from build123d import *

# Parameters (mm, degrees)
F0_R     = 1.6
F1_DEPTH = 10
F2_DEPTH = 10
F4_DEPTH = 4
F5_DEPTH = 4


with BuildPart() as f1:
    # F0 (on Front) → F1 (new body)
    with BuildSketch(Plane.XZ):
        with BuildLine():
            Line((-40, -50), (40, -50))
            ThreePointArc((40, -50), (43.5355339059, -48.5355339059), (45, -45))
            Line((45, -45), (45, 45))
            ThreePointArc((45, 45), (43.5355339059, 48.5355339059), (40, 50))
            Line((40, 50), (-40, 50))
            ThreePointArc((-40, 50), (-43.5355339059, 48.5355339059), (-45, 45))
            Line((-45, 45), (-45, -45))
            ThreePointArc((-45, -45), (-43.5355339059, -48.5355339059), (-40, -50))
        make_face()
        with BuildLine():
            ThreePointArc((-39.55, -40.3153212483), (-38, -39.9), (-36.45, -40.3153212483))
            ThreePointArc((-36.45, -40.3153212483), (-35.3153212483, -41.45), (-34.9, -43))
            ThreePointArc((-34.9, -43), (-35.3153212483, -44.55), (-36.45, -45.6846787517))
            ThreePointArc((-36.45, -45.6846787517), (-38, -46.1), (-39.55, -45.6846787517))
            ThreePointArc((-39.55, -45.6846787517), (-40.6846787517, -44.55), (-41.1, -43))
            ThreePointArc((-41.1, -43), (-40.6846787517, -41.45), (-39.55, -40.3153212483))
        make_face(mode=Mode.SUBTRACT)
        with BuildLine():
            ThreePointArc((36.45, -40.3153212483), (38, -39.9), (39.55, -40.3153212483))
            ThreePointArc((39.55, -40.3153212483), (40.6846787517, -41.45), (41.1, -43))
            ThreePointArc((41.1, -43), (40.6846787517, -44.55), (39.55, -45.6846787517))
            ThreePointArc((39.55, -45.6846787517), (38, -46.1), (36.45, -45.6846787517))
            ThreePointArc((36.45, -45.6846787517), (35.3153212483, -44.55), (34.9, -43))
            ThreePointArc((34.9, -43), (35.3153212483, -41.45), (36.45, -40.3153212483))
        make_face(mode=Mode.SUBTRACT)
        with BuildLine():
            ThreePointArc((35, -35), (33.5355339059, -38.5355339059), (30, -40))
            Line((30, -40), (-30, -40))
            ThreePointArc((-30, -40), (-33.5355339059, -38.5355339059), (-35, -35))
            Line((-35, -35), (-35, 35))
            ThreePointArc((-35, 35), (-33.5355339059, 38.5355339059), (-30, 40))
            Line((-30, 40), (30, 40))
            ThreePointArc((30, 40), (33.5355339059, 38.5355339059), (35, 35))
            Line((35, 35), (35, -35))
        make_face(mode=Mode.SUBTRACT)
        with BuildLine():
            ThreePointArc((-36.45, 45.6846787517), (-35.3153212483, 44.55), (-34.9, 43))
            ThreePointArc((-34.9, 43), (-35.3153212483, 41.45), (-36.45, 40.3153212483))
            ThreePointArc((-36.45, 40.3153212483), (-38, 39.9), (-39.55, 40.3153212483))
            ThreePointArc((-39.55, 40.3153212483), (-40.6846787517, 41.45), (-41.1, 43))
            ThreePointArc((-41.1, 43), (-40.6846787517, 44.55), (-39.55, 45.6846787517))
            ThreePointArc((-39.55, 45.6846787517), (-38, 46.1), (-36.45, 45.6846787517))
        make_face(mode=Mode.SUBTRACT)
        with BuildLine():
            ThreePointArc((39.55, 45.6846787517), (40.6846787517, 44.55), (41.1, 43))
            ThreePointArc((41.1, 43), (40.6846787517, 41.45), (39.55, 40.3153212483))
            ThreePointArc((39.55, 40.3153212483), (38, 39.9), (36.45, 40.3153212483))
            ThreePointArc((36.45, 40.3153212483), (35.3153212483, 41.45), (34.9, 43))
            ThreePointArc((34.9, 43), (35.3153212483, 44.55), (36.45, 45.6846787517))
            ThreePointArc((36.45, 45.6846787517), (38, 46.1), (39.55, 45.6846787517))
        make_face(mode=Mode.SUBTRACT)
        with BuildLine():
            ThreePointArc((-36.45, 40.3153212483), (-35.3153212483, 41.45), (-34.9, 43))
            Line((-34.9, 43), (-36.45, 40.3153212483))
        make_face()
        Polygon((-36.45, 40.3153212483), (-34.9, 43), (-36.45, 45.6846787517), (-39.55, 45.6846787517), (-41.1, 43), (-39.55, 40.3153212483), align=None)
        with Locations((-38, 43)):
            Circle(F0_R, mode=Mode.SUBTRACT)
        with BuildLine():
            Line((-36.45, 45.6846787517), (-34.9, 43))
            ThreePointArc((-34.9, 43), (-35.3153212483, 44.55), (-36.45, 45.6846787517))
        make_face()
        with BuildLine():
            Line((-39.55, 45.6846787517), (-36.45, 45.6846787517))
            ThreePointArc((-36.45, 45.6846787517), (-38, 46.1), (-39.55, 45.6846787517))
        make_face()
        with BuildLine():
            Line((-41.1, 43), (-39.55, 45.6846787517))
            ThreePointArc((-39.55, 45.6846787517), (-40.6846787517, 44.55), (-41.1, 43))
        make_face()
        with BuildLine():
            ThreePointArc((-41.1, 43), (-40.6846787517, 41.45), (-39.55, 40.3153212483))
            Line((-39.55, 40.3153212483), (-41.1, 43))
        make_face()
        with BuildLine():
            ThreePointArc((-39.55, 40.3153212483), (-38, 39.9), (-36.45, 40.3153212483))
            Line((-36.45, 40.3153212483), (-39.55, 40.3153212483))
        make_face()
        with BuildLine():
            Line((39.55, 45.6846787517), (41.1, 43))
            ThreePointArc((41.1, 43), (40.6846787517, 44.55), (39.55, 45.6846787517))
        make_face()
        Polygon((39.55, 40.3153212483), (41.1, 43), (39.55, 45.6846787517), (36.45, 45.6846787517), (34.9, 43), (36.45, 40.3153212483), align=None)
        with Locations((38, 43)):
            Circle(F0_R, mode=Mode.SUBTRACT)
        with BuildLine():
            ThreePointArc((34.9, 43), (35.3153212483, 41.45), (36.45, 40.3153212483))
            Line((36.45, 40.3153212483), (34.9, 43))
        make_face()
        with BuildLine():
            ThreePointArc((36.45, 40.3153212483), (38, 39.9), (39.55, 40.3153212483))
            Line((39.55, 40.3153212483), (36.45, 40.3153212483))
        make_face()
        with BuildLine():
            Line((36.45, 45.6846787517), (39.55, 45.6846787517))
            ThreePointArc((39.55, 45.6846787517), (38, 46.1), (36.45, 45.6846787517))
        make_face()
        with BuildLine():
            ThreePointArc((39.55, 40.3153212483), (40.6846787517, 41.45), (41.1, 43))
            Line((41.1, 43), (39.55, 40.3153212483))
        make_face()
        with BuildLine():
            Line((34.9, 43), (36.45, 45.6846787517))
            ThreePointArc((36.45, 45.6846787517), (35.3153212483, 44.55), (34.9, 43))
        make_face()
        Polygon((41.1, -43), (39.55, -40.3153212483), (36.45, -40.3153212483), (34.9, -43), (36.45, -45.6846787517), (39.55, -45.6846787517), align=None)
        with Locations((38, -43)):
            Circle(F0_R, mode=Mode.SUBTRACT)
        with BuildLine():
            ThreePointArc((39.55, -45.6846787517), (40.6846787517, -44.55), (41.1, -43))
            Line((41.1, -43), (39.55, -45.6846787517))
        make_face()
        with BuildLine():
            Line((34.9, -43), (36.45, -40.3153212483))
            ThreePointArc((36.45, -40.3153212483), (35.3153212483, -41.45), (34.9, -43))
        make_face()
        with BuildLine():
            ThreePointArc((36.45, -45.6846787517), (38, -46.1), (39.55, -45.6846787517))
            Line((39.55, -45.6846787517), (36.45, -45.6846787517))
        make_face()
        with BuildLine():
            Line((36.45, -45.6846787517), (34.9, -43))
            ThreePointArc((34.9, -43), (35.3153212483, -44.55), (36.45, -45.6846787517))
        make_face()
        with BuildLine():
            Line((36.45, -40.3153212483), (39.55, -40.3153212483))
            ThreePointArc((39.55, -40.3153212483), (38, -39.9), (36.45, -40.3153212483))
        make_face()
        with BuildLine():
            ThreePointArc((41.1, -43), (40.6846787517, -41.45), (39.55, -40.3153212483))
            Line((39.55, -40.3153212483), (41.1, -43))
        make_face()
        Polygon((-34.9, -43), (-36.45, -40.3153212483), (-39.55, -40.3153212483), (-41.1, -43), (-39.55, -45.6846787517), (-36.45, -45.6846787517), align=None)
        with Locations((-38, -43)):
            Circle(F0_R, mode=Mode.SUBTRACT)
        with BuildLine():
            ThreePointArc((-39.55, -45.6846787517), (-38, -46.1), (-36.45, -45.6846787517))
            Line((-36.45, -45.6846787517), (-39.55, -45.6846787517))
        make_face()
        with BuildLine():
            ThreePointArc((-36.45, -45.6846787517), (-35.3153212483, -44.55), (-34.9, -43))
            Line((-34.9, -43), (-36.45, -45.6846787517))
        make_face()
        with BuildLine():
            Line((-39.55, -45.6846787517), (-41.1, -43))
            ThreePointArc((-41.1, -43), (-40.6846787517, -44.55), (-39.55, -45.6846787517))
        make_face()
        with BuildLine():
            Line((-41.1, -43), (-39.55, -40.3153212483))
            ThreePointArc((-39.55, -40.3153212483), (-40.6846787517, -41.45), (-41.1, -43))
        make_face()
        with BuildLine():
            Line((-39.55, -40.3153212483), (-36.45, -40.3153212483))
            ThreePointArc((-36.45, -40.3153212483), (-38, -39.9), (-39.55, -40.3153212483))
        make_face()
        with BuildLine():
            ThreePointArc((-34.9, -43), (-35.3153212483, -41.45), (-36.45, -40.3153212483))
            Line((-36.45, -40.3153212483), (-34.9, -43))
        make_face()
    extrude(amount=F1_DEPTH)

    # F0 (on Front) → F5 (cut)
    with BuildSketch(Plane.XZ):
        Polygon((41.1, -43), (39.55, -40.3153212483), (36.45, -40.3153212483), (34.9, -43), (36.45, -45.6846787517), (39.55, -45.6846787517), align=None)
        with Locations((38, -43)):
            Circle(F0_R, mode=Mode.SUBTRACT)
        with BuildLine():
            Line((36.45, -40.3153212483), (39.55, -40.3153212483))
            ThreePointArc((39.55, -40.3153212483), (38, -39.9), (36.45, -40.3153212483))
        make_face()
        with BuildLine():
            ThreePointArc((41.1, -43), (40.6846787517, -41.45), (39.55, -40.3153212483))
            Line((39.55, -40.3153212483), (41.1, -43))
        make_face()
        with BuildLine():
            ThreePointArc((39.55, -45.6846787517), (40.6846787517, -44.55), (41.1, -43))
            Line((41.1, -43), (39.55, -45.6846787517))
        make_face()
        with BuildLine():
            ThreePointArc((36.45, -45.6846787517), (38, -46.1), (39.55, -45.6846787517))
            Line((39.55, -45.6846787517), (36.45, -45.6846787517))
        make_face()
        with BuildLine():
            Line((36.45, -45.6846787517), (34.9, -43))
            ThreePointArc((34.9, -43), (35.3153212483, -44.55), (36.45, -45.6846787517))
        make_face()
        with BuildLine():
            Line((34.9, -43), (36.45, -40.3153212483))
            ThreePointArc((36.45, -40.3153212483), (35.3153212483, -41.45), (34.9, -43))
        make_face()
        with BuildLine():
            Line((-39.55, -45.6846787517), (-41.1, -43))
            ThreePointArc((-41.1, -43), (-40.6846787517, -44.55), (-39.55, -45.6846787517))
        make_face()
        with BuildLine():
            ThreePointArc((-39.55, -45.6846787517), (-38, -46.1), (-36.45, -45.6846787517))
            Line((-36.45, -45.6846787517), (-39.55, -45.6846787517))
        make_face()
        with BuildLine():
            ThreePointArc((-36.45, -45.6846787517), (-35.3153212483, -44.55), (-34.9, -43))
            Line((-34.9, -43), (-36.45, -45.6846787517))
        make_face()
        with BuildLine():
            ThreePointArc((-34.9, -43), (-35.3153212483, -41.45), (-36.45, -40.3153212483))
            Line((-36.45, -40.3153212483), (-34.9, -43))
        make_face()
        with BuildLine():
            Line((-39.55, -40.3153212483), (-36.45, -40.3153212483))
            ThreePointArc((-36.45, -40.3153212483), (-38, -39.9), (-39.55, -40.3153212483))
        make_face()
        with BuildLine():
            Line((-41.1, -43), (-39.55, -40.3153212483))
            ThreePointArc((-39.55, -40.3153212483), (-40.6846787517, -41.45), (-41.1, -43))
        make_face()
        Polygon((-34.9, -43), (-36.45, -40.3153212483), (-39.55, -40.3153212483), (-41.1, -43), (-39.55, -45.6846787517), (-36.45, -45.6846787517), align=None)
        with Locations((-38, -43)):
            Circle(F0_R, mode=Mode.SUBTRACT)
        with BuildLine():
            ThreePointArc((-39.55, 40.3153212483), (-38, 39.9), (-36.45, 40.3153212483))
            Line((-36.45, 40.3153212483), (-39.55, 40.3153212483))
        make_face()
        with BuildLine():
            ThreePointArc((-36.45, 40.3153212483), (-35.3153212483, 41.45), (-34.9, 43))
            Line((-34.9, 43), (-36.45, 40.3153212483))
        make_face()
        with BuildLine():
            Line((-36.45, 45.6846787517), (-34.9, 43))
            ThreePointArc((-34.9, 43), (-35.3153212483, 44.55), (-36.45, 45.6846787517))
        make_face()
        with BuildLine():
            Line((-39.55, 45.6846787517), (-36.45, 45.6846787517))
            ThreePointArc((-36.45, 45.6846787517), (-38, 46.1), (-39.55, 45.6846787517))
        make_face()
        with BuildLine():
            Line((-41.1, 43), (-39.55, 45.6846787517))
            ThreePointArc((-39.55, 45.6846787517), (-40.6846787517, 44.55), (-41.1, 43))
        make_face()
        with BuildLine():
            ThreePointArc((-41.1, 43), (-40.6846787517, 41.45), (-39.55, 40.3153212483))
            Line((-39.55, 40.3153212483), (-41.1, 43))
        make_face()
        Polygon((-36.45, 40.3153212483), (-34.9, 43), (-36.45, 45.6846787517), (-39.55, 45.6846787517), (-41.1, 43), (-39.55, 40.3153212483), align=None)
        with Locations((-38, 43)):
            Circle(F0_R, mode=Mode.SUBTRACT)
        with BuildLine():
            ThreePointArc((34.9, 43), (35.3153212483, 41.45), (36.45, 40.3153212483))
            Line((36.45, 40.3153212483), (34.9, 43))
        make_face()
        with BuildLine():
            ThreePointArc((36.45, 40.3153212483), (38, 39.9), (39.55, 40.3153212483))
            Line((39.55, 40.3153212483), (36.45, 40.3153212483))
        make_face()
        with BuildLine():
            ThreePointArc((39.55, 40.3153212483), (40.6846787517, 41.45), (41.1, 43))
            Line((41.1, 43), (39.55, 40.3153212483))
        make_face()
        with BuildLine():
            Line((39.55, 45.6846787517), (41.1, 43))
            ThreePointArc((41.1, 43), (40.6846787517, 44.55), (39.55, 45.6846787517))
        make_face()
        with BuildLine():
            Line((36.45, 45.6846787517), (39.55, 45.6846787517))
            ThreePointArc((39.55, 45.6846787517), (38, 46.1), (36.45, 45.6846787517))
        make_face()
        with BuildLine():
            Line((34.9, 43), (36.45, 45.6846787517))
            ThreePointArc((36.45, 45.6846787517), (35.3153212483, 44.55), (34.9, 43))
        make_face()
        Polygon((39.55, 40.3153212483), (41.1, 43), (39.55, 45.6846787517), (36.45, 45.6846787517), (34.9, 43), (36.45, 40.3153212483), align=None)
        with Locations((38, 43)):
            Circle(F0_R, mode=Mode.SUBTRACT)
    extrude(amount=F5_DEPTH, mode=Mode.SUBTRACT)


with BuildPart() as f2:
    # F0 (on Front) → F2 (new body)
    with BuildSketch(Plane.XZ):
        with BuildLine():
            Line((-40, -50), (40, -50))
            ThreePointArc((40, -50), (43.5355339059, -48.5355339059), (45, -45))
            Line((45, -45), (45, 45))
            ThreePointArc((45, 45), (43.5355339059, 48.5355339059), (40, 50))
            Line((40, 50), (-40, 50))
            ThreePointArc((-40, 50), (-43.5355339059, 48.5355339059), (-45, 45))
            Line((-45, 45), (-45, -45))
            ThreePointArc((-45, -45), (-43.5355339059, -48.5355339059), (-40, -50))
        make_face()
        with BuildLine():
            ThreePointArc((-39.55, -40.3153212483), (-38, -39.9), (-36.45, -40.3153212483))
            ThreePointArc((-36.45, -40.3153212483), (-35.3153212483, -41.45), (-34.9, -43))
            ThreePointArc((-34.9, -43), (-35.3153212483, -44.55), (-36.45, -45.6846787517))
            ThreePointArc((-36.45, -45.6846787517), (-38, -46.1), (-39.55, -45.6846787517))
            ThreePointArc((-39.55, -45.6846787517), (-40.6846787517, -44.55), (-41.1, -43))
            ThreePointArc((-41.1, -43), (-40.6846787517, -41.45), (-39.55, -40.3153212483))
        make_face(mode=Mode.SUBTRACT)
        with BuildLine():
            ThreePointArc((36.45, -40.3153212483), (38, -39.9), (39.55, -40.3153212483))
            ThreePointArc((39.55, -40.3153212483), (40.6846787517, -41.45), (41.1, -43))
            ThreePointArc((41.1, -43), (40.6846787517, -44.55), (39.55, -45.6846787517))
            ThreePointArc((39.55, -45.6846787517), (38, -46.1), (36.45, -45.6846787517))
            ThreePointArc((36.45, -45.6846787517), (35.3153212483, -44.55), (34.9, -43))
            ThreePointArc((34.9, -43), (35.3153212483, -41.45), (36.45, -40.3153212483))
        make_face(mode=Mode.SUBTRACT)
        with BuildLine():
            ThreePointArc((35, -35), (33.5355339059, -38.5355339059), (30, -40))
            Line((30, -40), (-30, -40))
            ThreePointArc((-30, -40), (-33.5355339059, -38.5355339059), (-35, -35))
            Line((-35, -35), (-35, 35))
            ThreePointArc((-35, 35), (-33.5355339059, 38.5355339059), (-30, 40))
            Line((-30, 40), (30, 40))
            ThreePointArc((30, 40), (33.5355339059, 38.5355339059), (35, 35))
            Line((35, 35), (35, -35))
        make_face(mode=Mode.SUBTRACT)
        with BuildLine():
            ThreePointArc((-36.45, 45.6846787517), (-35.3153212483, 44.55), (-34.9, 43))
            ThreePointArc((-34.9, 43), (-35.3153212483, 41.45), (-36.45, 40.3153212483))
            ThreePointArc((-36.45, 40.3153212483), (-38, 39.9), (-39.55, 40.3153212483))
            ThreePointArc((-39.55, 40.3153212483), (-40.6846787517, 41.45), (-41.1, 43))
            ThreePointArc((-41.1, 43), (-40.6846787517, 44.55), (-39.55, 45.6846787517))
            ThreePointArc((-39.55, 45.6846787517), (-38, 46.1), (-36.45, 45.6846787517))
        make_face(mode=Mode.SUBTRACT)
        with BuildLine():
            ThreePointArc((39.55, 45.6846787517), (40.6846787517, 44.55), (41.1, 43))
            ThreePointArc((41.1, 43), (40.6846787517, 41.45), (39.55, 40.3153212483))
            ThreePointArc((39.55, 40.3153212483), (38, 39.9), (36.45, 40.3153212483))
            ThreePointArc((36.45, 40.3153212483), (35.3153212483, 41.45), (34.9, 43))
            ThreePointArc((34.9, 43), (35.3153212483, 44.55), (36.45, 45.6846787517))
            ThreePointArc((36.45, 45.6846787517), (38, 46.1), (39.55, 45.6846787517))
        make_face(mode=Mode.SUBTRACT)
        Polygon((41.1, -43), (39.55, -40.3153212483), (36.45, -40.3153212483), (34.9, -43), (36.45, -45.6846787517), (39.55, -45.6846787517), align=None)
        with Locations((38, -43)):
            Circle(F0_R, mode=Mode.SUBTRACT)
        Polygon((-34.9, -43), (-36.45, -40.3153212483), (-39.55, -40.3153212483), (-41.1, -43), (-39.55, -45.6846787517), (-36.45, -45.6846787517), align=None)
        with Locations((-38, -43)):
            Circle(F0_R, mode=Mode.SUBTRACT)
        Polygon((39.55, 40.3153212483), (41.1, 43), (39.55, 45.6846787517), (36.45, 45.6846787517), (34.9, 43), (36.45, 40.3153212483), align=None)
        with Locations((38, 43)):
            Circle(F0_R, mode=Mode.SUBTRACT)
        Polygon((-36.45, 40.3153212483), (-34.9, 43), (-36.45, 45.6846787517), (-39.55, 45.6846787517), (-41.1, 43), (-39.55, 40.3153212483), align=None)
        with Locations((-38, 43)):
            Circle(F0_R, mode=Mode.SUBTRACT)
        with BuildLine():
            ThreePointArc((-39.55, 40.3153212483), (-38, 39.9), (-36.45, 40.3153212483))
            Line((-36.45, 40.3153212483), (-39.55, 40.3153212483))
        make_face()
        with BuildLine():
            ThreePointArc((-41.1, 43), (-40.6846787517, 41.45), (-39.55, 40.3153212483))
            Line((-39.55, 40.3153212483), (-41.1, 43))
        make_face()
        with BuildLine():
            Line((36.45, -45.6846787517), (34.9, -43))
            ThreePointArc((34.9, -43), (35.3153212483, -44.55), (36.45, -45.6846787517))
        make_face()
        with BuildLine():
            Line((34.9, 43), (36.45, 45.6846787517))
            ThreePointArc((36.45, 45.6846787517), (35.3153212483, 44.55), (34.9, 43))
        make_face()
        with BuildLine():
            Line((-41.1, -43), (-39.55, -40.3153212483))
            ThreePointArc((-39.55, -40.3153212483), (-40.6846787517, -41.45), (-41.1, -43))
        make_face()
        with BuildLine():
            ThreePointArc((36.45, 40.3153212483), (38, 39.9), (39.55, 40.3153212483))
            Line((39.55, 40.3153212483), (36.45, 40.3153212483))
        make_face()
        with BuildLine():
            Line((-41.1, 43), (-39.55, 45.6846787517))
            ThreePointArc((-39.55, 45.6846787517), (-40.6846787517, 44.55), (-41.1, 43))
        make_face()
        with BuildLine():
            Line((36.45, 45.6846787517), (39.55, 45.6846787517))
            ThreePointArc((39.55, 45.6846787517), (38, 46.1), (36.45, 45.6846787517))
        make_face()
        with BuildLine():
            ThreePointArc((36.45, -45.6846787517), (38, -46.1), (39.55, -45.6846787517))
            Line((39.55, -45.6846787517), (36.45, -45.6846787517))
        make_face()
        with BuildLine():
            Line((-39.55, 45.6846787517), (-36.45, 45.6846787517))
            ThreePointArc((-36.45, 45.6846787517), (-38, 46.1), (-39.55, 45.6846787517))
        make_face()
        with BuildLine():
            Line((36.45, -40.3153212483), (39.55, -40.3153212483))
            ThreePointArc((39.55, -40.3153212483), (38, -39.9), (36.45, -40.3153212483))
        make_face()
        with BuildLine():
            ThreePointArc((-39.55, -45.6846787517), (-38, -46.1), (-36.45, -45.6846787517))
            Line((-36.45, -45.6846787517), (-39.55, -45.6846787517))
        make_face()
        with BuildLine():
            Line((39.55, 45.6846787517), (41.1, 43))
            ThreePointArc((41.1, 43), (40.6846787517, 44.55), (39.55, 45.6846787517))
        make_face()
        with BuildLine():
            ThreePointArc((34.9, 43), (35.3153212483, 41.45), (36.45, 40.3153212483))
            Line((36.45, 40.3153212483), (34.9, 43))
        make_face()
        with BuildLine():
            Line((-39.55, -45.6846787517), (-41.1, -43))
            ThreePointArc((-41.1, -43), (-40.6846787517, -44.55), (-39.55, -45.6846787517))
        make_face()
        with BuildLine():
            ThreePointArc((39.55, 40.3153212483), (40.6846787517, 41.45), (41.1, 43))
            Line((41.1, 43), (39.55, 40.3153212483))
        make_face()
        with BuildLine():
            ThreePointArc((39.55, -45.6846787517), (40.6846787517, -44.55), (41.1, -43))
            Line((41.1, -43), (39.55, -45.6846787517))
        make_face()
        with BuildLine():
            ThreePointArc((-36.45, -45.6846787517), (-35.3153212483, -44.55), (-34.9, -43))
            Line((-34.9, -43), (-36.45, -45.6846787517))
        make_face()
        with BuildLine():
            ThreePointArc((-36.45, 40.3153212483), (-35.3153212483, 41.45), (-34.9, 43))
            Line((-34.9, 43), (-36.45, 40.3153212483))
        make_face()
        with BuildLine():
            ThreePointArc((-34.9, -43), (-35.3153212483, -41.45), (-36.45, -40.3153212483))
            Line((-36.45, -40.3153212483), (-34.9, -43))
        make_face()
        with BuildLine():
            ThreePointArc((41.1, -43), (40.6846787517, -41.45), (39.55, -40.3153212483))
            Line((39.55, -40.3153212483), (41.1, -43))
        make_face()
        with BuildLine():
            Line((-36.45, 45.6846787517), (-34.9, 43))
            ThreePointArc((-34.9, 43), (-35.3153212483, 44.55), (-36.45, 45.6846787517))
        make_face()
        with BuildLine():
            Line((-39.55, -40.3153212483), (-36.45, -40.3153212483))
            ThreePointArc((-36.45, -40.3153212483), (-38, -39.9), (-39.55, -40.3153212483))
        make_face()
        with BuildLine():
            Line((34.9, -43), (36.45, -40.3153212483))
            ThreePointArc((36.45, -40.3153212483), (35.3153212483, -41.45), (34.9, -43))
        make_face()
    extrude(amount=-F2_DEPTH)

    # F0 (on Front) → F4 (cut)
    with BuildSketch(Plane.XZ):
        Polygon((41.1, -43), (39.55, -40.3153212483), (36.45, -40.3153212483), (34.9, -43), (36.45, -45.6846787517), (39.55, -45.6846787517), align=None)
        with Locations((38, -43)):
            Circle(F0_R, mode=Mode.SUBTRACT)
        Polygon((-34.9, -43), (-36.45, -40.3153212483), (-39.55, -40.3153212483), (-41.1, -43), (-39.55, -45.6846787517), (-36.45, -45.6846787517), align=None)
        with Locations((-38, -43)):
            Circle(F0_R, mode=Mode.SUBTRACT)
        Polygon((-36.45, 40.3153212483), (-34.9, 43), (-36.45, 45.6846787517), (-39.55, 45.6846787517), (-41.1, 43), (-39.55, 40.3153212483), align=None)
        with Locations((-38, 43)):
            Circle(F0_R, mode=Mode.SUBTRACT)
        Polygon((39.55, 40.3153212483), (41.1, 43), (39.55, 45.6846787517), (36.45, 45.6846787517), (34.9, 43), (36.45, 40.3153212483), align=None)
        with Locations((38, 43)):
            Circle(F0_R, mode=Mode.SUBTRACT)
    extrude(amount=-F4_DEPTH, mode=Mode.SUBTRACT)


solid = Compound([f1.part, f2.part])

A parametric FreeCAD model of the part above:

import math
import FreeCAD as App
import Part
import Sketcher
Q = App.Units.Quantity

doc = App.newDocument("Part")
body = doc.addObject("PartDesign::Body", "Body")

sketch1 = body.newObject("Sketcher::SketchObject", "Sketch")
sketch1.AttachmentSupport = (doc.getObject("XZ_Plane"), [""])
sketch1.MapMode = "FlatFace"
sketch1.addGeometry([
    Part.LineSegment(App.Vector(-40, -50, 0), App.Vector(40, -50, 0)),
    Part.ArcOfCircle(Part.Circle(App.Vector(40, -45, 0), App.Vector(0, 0, 1), 5), math.radians(-90), math.radians(0)),
    Part.LineSegment(App.Vector(45, -45, 0), App.Vector(45, 45, 0)),
    Part.ArcOfCircle(Part.Circle(App.Vector(40, 45, 0), App.Vector(0, 0, 1), 5), math.radians(0), math.radians(90)),
    Part.LineSegment(App.Vector(40, 50, 0), App.Vector(-40, 50, 0)),
    Part.ArcOfCircle(Part.Circle(App.Vector(-40, 45, 0), App.Vector(0, 0, 1), 5), math.radians(90), math.radians(180)),
    Part.LineSegment(App.Vector(-45, 45, 0), App.Vector(-45, -45, 0)),
    Part.ArcOfCircle(Part.Circle(App.Vector(-40, -45, 0), App.Vector(0, 0, 1), 5), math.radians(180), math.radians(270)),
    Part.Circle(App.Vector(-38, -43, 0), App.Vector(0, 0, 1), 1.6),
    Part.Circle(App.Vector(38, -43, 0), App.Vector(0, 0, 1), 1.6),
    Part.Circle(App.Vector(-38, 43, 0), App.Vector(0, 0, 1), 1.6),
    Part.LineSegment(App.Vector(35, 35, 0), App.Vector(35, -35, 0)),
    Part.ArcOfCircle(Part.Circle(App.Vector(30, -35, 0), App.Vector(0, 0, 1), 5), math.radians(-90), math.radians(0)),
    Part.LineSegment(App.Vector(30, -40, 0), App.Vector(-30, -40, 0)),
    Part.ArcOfCircle(Part.Circle(App.Vector(-30, -35, 0), App.Vector(0, 0, 1), 5), math.radians(180), math.radians(270)),
    Part.LineSegment(App.Vector(-35, -35, 0), App.Vector(-35, 35, 0)),
    Part.ArcOfCircle(Part.Circle(App.Vector(-30, 35, 0), App.Vector(0, 0, 1), 5), math.radians(90), math.radians(180)),
    Part.LineSegment(App.Vector(-30, 40, 0), App.Vector(30, 40, 0)),
    Part.ArcOfCircle(Part.Circle(App.Vector(30, 35, 0), App.Vector(0, 0, 1), 5), math.radians(0), math.radians(90)),
    Part.Circle(App.Vector(38, 43, 0), App.Vector(0, 0, 1), 1.6),
], False)
sketch1.addConstraint([
    Sketcher.Constraint("Tangent", 0, 2, 1, 1),
    Sketcher.Constraint("Tangent", 1, 2, 2, 1),
    Sketcher.Constraint("Tangent", 2, 2, 3, 1),
    Sketcher.Constraint("Tangent", 3, 2, 4, 1),
    Sketcher.Constraint("Tangent", 4, 2, 5, 1),
    Sketcher.Constraint("Tangent", 5, 2, 6, 1),
    Sketcher.Constraint("Tangent", 6, 2, 7, 1),
    Sketcher.Constraint("Tangent", 7, 2, 0, 1),
    Sketcher.Constraint("Tangent", 11, 2, 12, 2),
    Sketcher.Constraint("Tangent", 12, 1, 13, 1),
    Sketcher.Constraint("Tangent", 13, 2, 14, 2),
    Sketcher.Constraint("Tangent", 14, 1, 15, 1),
    Sketcher.Constraint("Tangent", 15, 2, 16, 2),
    Sketcher.Constraint("Tangent", 16, 1, 17, 1),
    Sketcher.Constraint("Tangent", 17, 2, 18, 2),
    Sketcher.Constraint("Tangent", 18, 1, 11, 1),
    Sketcher.Constraint("Horizontal", 0),
    Sketcher.Constraint("Vertical", 2),
    Sketcher.Constraint("Horizontal", 4),
    Sketcher.Constraint("Vertical", 6),
    Sketcher.Constraint("Vertical", 11),
    Sketcher.Constraint("Horizontal", 13),
    Sketcher.Constraint("Vertical", 15),
    Sketcher.Constraint("Horizontal", 17),
    Sketcher.Constraint("Equal", 1, 3),
    Sketcher.Constraint("Equal", 3, 5),
    Sketcher.Constraint("Equal", 5, 7),
    Sketcher.Constraint("Equal", 8, 9),
    Sketcher.Constraint("Equal", 9, 10),
    Sketcher.Constraint("Equal", 7, 12),
    Sketcher.Constraint("Equal", 12, 14),
    Sketcher.Constraint("Equal", 14, 16),
    Sketcher.Constraint("Equal", 16, 18),
    Sketcher.Constraint("Equal", 10, 19),
    Sketcher.Constraint("Symmetric", 1, 3, 5, 3, -1, 1),
    Sketcher.Constraint("Symmetric", 9, 3, 10, 3, -1, 1),
    Sketcher.Constraint("Symmetric", 12, 3, 16, 3, -1, 1),
    Sketcher.Constraint("Symmetric", 8, 3, 19, 3, -1, 1),
    Sketcher.Constraint("Symmetric", 8, 3, 9, 3, -2),
    Sketcher.Constraint("Radius", 1, Q("5 mm")),
    Sketcher.Constraint("Diameter", 8, Q("3.2 mm")),
    Sketcher.Constraint("DistanceX", 0, 1, 0, 2, Q("80 mm")),
    Sketcher.Constraint("DistanceX", 13, 2, 13, 1, Q("60 mm")),
    Sketcher.Constraint("DistanceY", 2, 1, 2, 2, Q("90 mm")),
    Sketcher.Constraint("DistanceY", 11, 2, 11, 1, Q("70 mm")),
    Sketcher.Constraint("DistanceX", 8, 3, -1, 1, Q("38 mm")),
    Sketcher.Constraint("DistanceY", 8, 3, -1, 1, Q("43 mm")),
])
pad1 = body.newObject("PartDesign::Pad", "Pad")
pad1.Profile = sketch1
pad1.Length = 10

sketch2 = body.newObject("Sketcher::SketchObject", "Sketch001")
sketch2.AttachmentSupport = (doc.getObject("XZ_Plane"), [""])
sketch2.MapMode = "FlatFace"
sketch2.addGeometry([
    Part.ArcOfCircle(Part.Circle(App.Vector(38, -43, 0), App.Vector(0, 0, 1), 3.1), math.radians(60), math.radians(120)),
    Part.ArcOfCircle(Part.Circle(App.Vector(38, -43, 0), App.Vector(0, 0, 1), 3.1), math.radians(120), math.radians(180)),
    Part.ArcOfCircle(Part.Circle(App.Vector(38, -43, 0), App.Vector(0, 0, 1), 3.1), math.radians(180), math.radians(240)),
    Part.ArcOfCircle(Part.Circle(App.Vector(38, -43, 0), App.Vector(0, 0, 1), 3.1), math.radians(-120), math.radians(-60)),
    Part.ArcOfCircle(Part.Circle(App.Vector(38, -43, 0), App.Vector(0, 0, 1), 3.1), math.radians(-60), math.radians(0)),
    Part.ArcOfCircle(Part.Circle(App.Vector(38, -43, 0), App.Vector(0, 0, 1), 3.1), math.radians(0), math.radians(60)),
    Part.Circle(App.Vector(38, -43, 0), App.Vector(0, 0, 1), 1.6),
    Part.ArcOfCircle(Part.Circle(App.Vector(-38, -43, 0), App.Vector(0, 0, 1), 3.1), math.radians(180), math.radians(240)),
    Part.ArcOfCircle(Part.Circle(App.Vector(-38, -43, 0), App.Vector(0, 0, 1), 3.1), math.radians(-120), math.radians(-60)),
    Part.ArcOfCircle(Part.Circle(App.Vector(-38, -43, 0), App.Vector(0, 0, 1), 3.1), math.radians(-60), math.radians(0)),
    Part.ArcOfCircle(Part.Circle(App.Vector(-38, -43, 0), App.Vector(0, 0, 1), 3.1), math.radians(0), math.radians(60)),
    Part.ArcOfCircle(Part.Circle(App.Vector(-38, -43, 0), App.Vector(0, 0, 1), 3.1), math.radians(60), math.radians(120)),
    Part.ArcOfCircle(Part.Circle(App.Vector(-38, -43, 0), App.Vector(0, 0, 1), 3.1), math.radians(120), math.radians(180)),
    Part.Circle(App.Vector(-38, -43, 0), App.Vector(0, 0, 1), 1.6),
    Part.ArcOfCircle(Part.Circle(App.Vector(-38, 43, 0), App.Vector(0, 0, 1), 3.1), math.radians(-120), math.radians(-60)),
    Part.ArcOfCircle(Part.Circle(App.Vector(-38, 43, 0), App.Vector(0, 0, 1), 3.1), math.radians(-60), math.radians(0)),
    Part.ArcOfCircle(Part.Circle(App.Vector(-38, 43, 0), App.Vector(0, 0, 1), 3.1), math.radians(0), math.radians(60)),
    Part.ArcOfCircle(Part.Circle(App.Vector(-38, 43, 0), App.Vector(0, 0, 1), 3.1), math.radians(60), math.radians(120)),
    Part.ArcOfCircle(Part.Circle(App.Vector(-38, 43, 0), App.Vector(0, 0, 1), 3.1), math.radians(120), math.radians(180)),
    Part.ArcOfCircle(Part.Circle(App.Vector(-38, 43, 0), App.Vector(0, 0, 1), 3.1), math.radians(180), math.radians(240)),
    Part.Circle(App.Vector(-38, 43, 0), App.Vector(0, 0, 1), 1.6),
    Part.ArcOfCircle(Part.Circle(App.Vector(38, 43, 0), App.Vector(0, 0, 1), 3.1), math.radians(180), math.radians(240)),
    Part.ArcOfCircle(Part.Circle(App.Vector(38, 43, 0), App.Vector(0, 0, 1), 3.1), math.radians(-120), math.radians(-60)),
    Part.ArcOfCircle(Part.Circle(App.Vector(38, 43, 0), App.Vector(0, 0, 1), 3.1), math.radians(-60), math.radians(0)),
    Part.ArcOfCircle(Part.Circle(App.Vector(38, 43, 0), App.Vector(0, 0, 1), 3.1), math.radians(0), math.radians(60)),
    Part.ArcOfCircle(Part.Circle(App.Vector(38, 43, 0), App.Vector(0, 0, 1), 3.1), math.radians(60), math.radians(120)),
    Part.ArcOfCircle(Part.Circle(App.Vector(38, 43, 0), App.Vector(0, 0, 1), 3.1), math.radians(120), math.radians(180)),
    Part.Circle(App.Vector(38, 43, 0), App.Vector(0, 0, 1), 1.6),
], False)
sketch2.addConstraint([
    Sketcher.Constraint("Tangent", 0, 2, 1, 1),
    Sketcher.Constraint("Tangent", 1, 2, 2, 1),
    Sketcher.Constraint("Tangent", 2, 2, 3, 1),
    Sketcher.Constraint("Tangent", 3, 2, 4, 1),
    Sketcher.Constraint("Tangent", 4, 2, 5, 1),
    Sketcher.Constraint("Tangent", 5, 2, 0, 1),
    Sketcher.Constraint("Tangent", 7, 2, 8, 1),
    Sketcher.Constraint("Tangent", 8, 2, 9, 1),
    Sketcher.Constraint("Tangent", 9, 2, 10, 1),
    Sketcher.Constraint("Tangent", 10, 2, 11, 1),
    Sketcher.Constraint("Tangent", 11, 2, 12, 1),
    Sketcher.Constraint("Tangent", 12, 2, 7, 1),
    Sketcher.Constraint("Tangent", 14, 2, 15, 1),
    Sketcher.Constraint("Tangent", 15, 2, 16, 1),
    Sketcher.Constraint("Tangent", 16, 2, 17, 1),
    Sketcher.Constraint("Tangent", 17, 2, 18, 1),
    Sketcher.Constraint("Tangent", 18, 2, 19, 1),
    Sketcher.Constraint("Tangent", 19, 2, 14, 1),
    Sketcher.Constraint("Tangent", 21, 2, 22, 1),
    Sketcher.Constraint("Tangent", 22, 2, 23, 1),
    Sketcher.Constraint("Tangent", 23, 2, 24, 1),
    Sketcher.Constraint("Tangent", 24, 2, 25, 1),
    Sketcher.Constraint("Tangent", 25, 2, 26, 1),
    Sketcher.Constraint("Tangent", 26, 2, 21, 1),
    Sketcher.Constraint("Coincident", 2, 3, 0, 3),
    Sketcher.Constraint("Coincident", 6, 3, 0, 3),
    Sketcher.Constraint("Coincident", 9, 3, 7, 3),
    Sketcher.Constraint("Coincident", 13, 3, 7, 3),
    Sketcher.Constraint("Coincident", 16, 3, 14, 3),
    Sketcher.Constraint("Coincident", 20, 3, 14, 3),
    Sketcher.Constraint("Coincident", 23, 3, 21, 3),
    Sketcher.Constraint("Coincident", 27, 3, 21, 3),
    Sketcher.Constraint("Equal", 2, 3),
    Sketcher.Constraint("Equal", 5, 7),
    Sketcher.Constraint("Equal", 9, 10),
    Sketcher.Constraint("Equal", 6, 13),
    Sketcher.Constraint("Equal", 12, 14),
    Sketcher.Constraint("Equal", 16, 17),
    Sketcher.Constraint("Equal", 13, 20),
    Sketcher.Constraint("Equal", 19, 21),
    Sketcher.Constraint("Equal", 23, 24),
    Sketcher.Constraint("Equal", 20, 27),
    Sketcher.Constraint("Symmetric", 0, 3, 14, 3, -1, 1),
    Sketcher.Constraint("Symmetric", 7, 3, 21, 3, -1, 1),
    Sketcher.Constraint("Symmetric", 0, 3, 7, 3, -2),
    Sketcher.Constraint("Horizontal", 13, 3, 1, 2),
    Sketcher.Constraint("Horizontal", 2, 2, 3, 2),
    Sketcher.Constraint("Horizontal", 1, 2, 4, 2),
    Sketcher.Constraint("Horizontal", 0, 2, 5, 2),
    Sketcher.Constraint("Horizontal", 3, 2, 7, 2),
    Sketcher.Constraint("Horizontal", 7, 2, 8, 2),
    Sketcher.Constraint("Horizontal", 4, 2, 9, 2),
    Sketcher.Constraint("Horizontal", 5, 2, 10, 2),
    Sketcher.Constraint("Horizontal", 10, 2, 11, 2),
    Sketcher.Constraint("Horizontal", 9, 2, 12, 2),
    Sketcher.Constraint("Horizontal", 27, 3, 15, 2),
    Sketcher.Constraint("Horizontal", 16, 2, 17, 2),
    Sketcher.Constraint("Horizontal", 15, 2, 18, 2),
    Sketcher.Constraint("Horizontal", 14, 2, 19, 2),
    Sketcher.Constraint("Horizontal", 19, 2, 21, 2),
    Sketcher.Constraint("Horizontal", 21, 2, 22, 2),
    Sketcher.Constraint("Horizontal", 18, 2, 23, 2),
    Sketcher.Constraint("Horizontal", 17, 2, 24, 2),
    Sketcher.Constraint("Horizontal", 24, 2, 25, 2),
    Sketcher.Constraint("Horizontal", 23, 2, 26, 2),
    Sketcher.Constraint("Vertical", 0, 2, 2, 2),
    Sketcher.Constraint("Vertical", 10, 2, 14, 2),
    Sketcher.Constraint("Vertical", 14, 2, 16, 2),
    Sketcher.Constraint("Diameter", 6, Q("3.2 mm")),
    Sketcher.Constraint("Radius", 0, Q("3.1 mm")),
    Sketcher.Constraint("DistanceX", -1, 1, 0, 3, Q("38 mm")),
    Sketcher.Constraint("DistanceY", 0, 3, -1, 1, Q("43 mm")),
    Sketcher.Constraint("DistanceX", 2, 2, 3, 2, Q("3.1 mm")),
])
pocket1 = body.newObject("PartDesign::Pocket", "Pocket")
pocket1.Profile = sketch2
pocket1.Length = 4
pocket1.Reversed = True
body2 = doc.addObject("PartDesign::Body", "Body001")

sketch3 = body2.newObject("Sketcher::SketchObject", "Sketch002")
sketch3.AttachmentSupport = (doc.getObject("XZ_Plane001"), [""])
sketch3.MapMode = "FlatFace"
sketch3.addGeometry([
    Part.LineSegment(App.Vector(-40, -50, 0), App.Vector(40, -50, 0)),
    Part.ArcOfCircle(Part.Circle(App.Vector(40, -45, 0), App.Vector(0, 0, 1), 5), math.radians(-90), math.radians(0)),
    Part.LineSegment(App.Vector(45, -45, 0), App.Vector(45, 45, 0)),
    Part.ArcOfCircle(Part.Circle(App.Vector(40, 45, 0), App.Vector(0, 0, 1), 5), math.radians(0), math.radians(90)),
    Part.LineSegment(App.Vector(40, 50, 0), App.Vector(-40, 50, 0)),
    Part.ArcOfCircle(Part.Circle(App.Vector(-40, 45, 0), App.Vector(0, 0, 1), 5), math.radians(90), math.radians(180)),
    Part.LineSegment(App.Vector(-45, 45, 0), App.Vector(-45, -45, 0)),
    Part.ArcOfCircle(Part.Circle(App.Vector(-40, -45, 0), App.Vector(0, 0, 1), 5), math.radians(180), math.radians(270)),
    Part.Circle(App.Vector(-38, -43, 0), App.Vector(0, 0, 1), 1.6),
    Part.LineSegment(App.Vector(35, 35, 0), App.Vector(35, -35, 0)),
    Part.ArcOfCircle(Part.Circle(App.Vector(30, -35, 0), App.Vector(0, 0, 1), 5), math.radians(-90), math.radians(0)),
    Part.LineSegment(App.Vector(30, -40, 0), App.Vector(-30, -40, 0)),
    Part.ArcOfCircle(Part.Circle(App.Vector(-30, -35, 0), App.Vector(0, 0, 1), 5), math.radians(180), math.radians(270)),
    Part.LineSegment(App.Vector(-35, -35, 0), App.Vector(-35, 35, 0)),
    Part.ArcOfCircle(Part.Circle(App.Vector(-30, 35, 0), App.Vector(0, 0, 1), 5), math.radians(90), math.radians(180)),
    Part.LineSegment(App.Vector(-30, 40, 0), App.Vector(30, 40, 0)),
    Part.ArcOfCircle(Part.Circle(App.Vector(30, 35, 0), App.Vector(0, 0, 1), 5), math.radians(0), math.radians(90)),
    Part.Circle(App.Vector(38, -43, 0), App.Vector(0, 0, 1), 1.6),
    Part.Circle(App.Vector(-38, 43, 0), App.Vector(0, 0, 1), 1.6),
    Part.Circle(App.Vector(38, 43, 0), App.Vector(0, 0, 1), 1.6),
], False)
sketch3.addConstraint([
    Sketcher.Constraint("Tangent", 0, 2, 1, 1),
    Sketcher.Constraint("Tangent", 1, 2, 2, 1),
    Sketcher.Constraint("Tangent", 2, 2, 3, 1),
    Sketcher.Constraint("Tangent", 3, 2, 4, 1),
    Sketcher.Constraint("Tangent", 4, 2, 5, 1),
    Sketcher.Constraint("Tangent", 5, 2, 6, 1),
    Sketcher.Constraint("Tangent", 6, 2, 7, 1),
    Sketcher.Constraint("Tangent", 7, 2, 0, 1),
    Sketcher.Constraint("Tangent", 9, 2, 10, 2),
    Sketcher.Constraint("Tangent", 10, 1, 11, 1),
    Sketcher.Constraint("Tangent", 11, 2, 12, 2),
    Sketcher.Constraint("Tangent", 12, 1, 13, 1),
    Sketcher.Constraint("Tangent", 13, 2, 14, 2),
    Sketcher.Constraint("Tangent", 14, 1, 15, 1),
    Sketcher.Constraint("Tangent", 15, 2, 16, 2),
    Sketcher.Constraint("Tangent", 16, 1, 9, 1),
    Sketcher.Constraint("Horizontal", 0),
    Sketcher.Constraint("Vertical", 2),
    Sketcher.Constraint("Horizontal", 4),
    Sketcher.Constraint("Vertical", 6),
    Sketcher.Constraint("Vertical", 9),
    Sketcher.Constraint("Horizontal", 11),
    Sketcher.Constraint("Vertical", 13),
    Sketcher.Constraint("Horizontal", 15),
    Sketcher.Constraint("Equal", 1, 3),
    Sketcher.Constraint("Equal", 3, 5),
    Sketcher.Constraint("Equal", 5, 7),
    Sketcher.Constraint("Equal", 7, 10),
    Sketcher.Constraint("Equal", 10, 12),
    Sketcher.Constraint("Equal", 12, 14),
    Sketcher.Constraint("Equal", 14, 16),
    Sketcher.Constraint("Equal", 8, 17),
    Sketcher.Constraint("Equal", 17, 18),
    Sketcher.Constraint("Equal", 18, 19),
    Sketcher.Constraint("Symmetric", 1, 3, 5, 3, -1, 1),
    Sketcher.Constraint("Symmetric", 10, 3, 14, 3, -1, 1),
    Sketcher.Constraint("Symmetric", 17, 3, 18, 3, -1, 1),
    Sketcher.Constraint("Symmetric", 8, 3, 19, 3, -1, 1),
    Sketcher.Constraint("Symmetric", 8, 3, 17, 3, -2),
    Sketcher.Constraint("Radius", 1, Q("5 mm")),
    Sketcher.Constraint("Diameter", 8, Q("3.2 mm")),
    Sketcher.Constraint("DistanceX", 0, 1, 0, 2, Q("80 mm")),
    Sketcher.Constraint("DistanceX", 11, 2, 11, 1, Q("60 mm")),
    Sketcher.Constraint("DistanceY", 2, 1, 2, 2, Q("90 mm")),
    Sketcher.Constraint("DistanceY", 9, 2, 9, 1, Q("70 mm")),
    Sketcher.Constraint("DistanceX", 8, 3, -1, 1, Q("38 mm")),
    Sketcher.Constraint("DistanceY", 8, 3, -1, 1, Q("43 mm")),
])
pad2 = body2.newObject("PartDesign::Pad", "Pad001")
pad2.Profile = sketch3
pad2.Length = 10
pad2.Reversed = True

sketch4 = body2.newObject("Sketcher::SketchObject", "Sketch003")
sketch4.AttachmentSupport = (doc.getObject("XZ_Plane001"), [""])
sketch4.MapMode = "FlatFace"
sketch4.addGeometry([
    Part.LineSegment(App.Vector(41.1, -43, 0), App.Vector(39.5, -40.3, 0)),
    Part.LineSegment(App.Vector(39.5, -40.3, 0), App.Vector(36.5, -40.3, 0)),
    Part.LineSegment(App.Vector(36.5, -40.3, 0), App.Vector(34.9, -43, 0)),
    Part.LineSegment(App.Vector(34.9, -43, 0), App.Vector(36.5, -45.7, 0)),
    Part.LineSegment(App.Vector(36.5, -45.7, 0), App.Vector(39.5, -45.7, 0)),
    Part.LineSegment(App.Vector(39.5, -45.7, 0), App.Vector(41.1, -43, 0)),
    Part.Circle(App.Vector(38, -43, 0), App.Vector(0, 0, 1), 1.6),
    Part.LineSegment(App.Vector(-34.9, -43, 0), App.Vector(-36.5, -40.3, 0)),
    Part.LineSegment(App.Vector(-36.5, -40.3, 0), App.Vector(-39.5, -40.3, 0)),
    Part.LineSegment(App.Vector(-39.5, -40.3, 0), App.Vector(-41.1, -43, 0)),
    Part.LineSegment(App.Vector(-41.1, -43, 0), App.Vector(-39.5, -45.7, 0)),
    Part.LineSegment(App.Vector(-39.5, -45.7, 0), App.Vector(-36.5, -45.7, 0)),
    Part.LineSegment(App.Vector(-36.5, -45.7, 0), App.Vector(-34.9, -43, 0)),
    Part.Circle(App.Vector(-38, -43, 0), App.Vector(0, 0, 1), 1.6),
    Part.LineSegment(App.Vector(-36.5, 40.3, 0), App.Vector(-34.9, 43, 0)),
    Part.LineSegment(App.Vector(-34.9, 43, 0), App.Vector(-36.5, 45.7, 0)),
    Part.LineSegment(App.Vector(-36.5, 45.7, 0), App.Vector(-39.5, 45.7, 0)),
    Part.LineSegment(App.Vector(-39.5, 45.7, 0), App.Vector(-41.1, 43, 0)),
    Part.LineSegment(App.Vector(-41.1, 43, 0), App.Vector(-39.5, 40.3, 0)),
    Part.LineSegment(App.Vector(-39.5, 40.3, 0), App.Vector(-36.5, 40.3, 0)),
    Part.Circle(App.Vector(-38, 43, 0), App.Vector(0, 0, 1), 1.6),
    Part.LineSegment(App.Vector(39.5, 40.3, 0), App.Vector(41.1, 43, 0)),
    Part.LineSegment(App.Vector(41.1, 43, 0), App.Vector(39.5, 45.7, 0)),
    Part.LineSegment(App.Vector(39.5, 45.7, 0), App.Vector(36.5, 45.7, 0)),
    Part.LineSegment(App.Vector(36.5, 45.7, 0), App.Vector(34.9, 43, 0)),
    Part.LineSegment(App.Vector(34.9, 43, 0), App.Vector(36.5, 40.3, 0)),
    Part.LineSegment(App.Vector(36.5, 40.3, 0), App.Vector(39.5, 40.3, 0)),
    Part.Circle(App.Vector(38, 43, 0), App.Vector(0, 0, 1), 1.6),
], False)
sketch4.addConstraint([
    Sketcher.Constraint("Coincident", 0, 2, 1, 1),
    Sketcher.Constraint("Coincident", 1, 2, 2, 1),
    Sketcher.Constraint("Coincident", 2, 2, 3, 1),
    Sketcher.Constraint("Coincident", 3, 2, 4, 1),
    Sketcher.Constraint("Coincident", 4, 2, 5, 1),
    Sketcher.Constraint("Coincident", 5, 2, 0, 1),
    Sketcher.Constraint("Coincident", 7, 2, 8, 1),
    Sketcher.Constraint("Coincident", 8, 2, 9, 1),
    Sketcher.Constraint("Coincident", 9, 2, 10, 1),
    Sketcher.Constraint("Coincident", 10, 2, 11, 1),
    Sketcher.Constraint("Coincident", 11, 2, 12, 1),
    Sketcher.Constraint("Coincident", 12, 2, 7, 1),
    Sketcher.Constraint("Coincident", 14, 2, 15, 1),
    Sketcher.Constraint("Coincident", 15, 2, 16, 1),
    Sketcher.Constraint("Coincident", 16, 2, 17, 1),
    Sketcher.Constraint("Coincident", 17, 2, 18, 1),
    Sketcher.Constraint("Coincident", 18, 2, 19, 1),
    Sketcher.Constraint("Coincident", 19, 2, 14, 1),
    Sketcher.Constraint("Coincident", 21, 2, 22, 1),
    Sketcher.Constraint("Coincident", 22, 2, 23, 1),
    Sketcher.Constraint("Coincident", 23, 2, 24, 1),
    Sketcher.Constraint("Coincident", 24, 2, 25, 1),
    Sketcher.Constraint("Coincident", 25, 2, 26, 1),
    Sketcher.Constraint("Coincident", 26, 2, 21, 1),
    Sketcher.Constraint("Horizontal", 1),
    Sketcher.Constraint("Horizontal", 4),
    Sketcher.Constraint("Horizontal", 8),
    Sketcher.Constraint("Horizontal", 11),
    Sketcher.Constraint("Horizontal", 16),
    Sketcher.Constraint("Horizontal", 19),
    Sketcher.Constraint("Horizontal", 23),
    Sketcher.Constraint("Horizontal", 26),
    Sketcher.Constraint("Equal", 6, 13),
    Sketcher.Constraint("Equal", 13, 20),
    Sketcher.Constraint("Equal", 20, 27),
    Sketcher.Constraint("Symmetric", 6, 3, 20, 3, -1, 1),
    Sketcher.Constraint("Symmetric", 13, 3, 27, 3, -1, 1),
    Sketcher.Constraint("Symmetric", 2, 2, 14, 2, -1, 1),
    Sketcher.Constraint("Symmetric", 3, 2, 15, 2, -1, 1),
    Sketcher.Constraint("Symmetric", 5, 2, 17, 2, -1, 1),
    Sketcher.Constraint("Symmetric", 0, 2, 18, 2, -1, 1),
    Sketcher.Constraint("Symmetric", 9, 2, 21, 2, -1, 1),
    Sketcher.Constraint("Symmetric", 10, 2, 22, 2, -1, 1),
    Sketcher.Constraint("Symmetric", 12, 2, 24, 2, -1, 1),
    Sketcher.Constraint("Symmetric", 7, 2, 25, 2, -1, 1),
    Sketcher.Constraint("Symmetric", 6, 3, 13, 3, -2),
    Sketcher.Constraint("Symmetric", 1, 2, 7, 2, -2),
    Sketcher.Constraint("Symmetric", 5, 2, 9, 2, -2),
    Sketcher.Constraint("Symmetric", 4, 2, 10, 2, -2),
    Sketcher.Constraint("Symmetric", 2, 2, 12, 2, -2),
    Sketcher.Constraint("Parallel", 0, 3),
    Sketcher.Constraint("Parallel", 2, 5),
    Sketcher.Constraint("Parallel", 3, 7),
    Sketcher.Constraint("Parallel", 5, 9),
    Sketcher.Constraint("Parallel", 9, 12),
    Sketcher.Constraint("Parallel", 12, 14),
    Sketcher.Constraint("Parallel", 14, 17),
    Sketcher.Constraint("Parallel", 17, 21),
    Sketcher.Constraint("Parallel", 21, 24),
    Sketcher.Constraint("Horizontal", 13, 3, 2, 2),
    Sketcher.Constraint("Horizontal", 2, 2, 5, 2),
    Sketcher.Constraint("Vertical", 1, 2, 3, 2),
    Sketcher.Constraint("Diameter", 6, Q("3.2 mm")),
    Sketcher.Constraint("Angle", 0, Q("120 deg")),
    Sketcher.Constraint("DistanceX", 1, 2, 1, 1, Q("3.1 mm")),
    Sketcher.Constraint("DistanceX", -1, 1, 6, 3, Q("38 mm")),
    Sketcher.Constraint("DistanceY", 6, 3, -1, 1, Q("43 mm")),
    Sketcher.Constraint("DistanceX", 8, 2, 1, 2, Q("76 mm")),
    Sketcher.Constraint("Distance", 0, Q("3.1 mm")),
])
pocket2 = body2.newObject("PartDesign::Pocket", "Pocket001")
pocket2.Profile = sketch4
pocket2.Length = 4

doc.recompute()
